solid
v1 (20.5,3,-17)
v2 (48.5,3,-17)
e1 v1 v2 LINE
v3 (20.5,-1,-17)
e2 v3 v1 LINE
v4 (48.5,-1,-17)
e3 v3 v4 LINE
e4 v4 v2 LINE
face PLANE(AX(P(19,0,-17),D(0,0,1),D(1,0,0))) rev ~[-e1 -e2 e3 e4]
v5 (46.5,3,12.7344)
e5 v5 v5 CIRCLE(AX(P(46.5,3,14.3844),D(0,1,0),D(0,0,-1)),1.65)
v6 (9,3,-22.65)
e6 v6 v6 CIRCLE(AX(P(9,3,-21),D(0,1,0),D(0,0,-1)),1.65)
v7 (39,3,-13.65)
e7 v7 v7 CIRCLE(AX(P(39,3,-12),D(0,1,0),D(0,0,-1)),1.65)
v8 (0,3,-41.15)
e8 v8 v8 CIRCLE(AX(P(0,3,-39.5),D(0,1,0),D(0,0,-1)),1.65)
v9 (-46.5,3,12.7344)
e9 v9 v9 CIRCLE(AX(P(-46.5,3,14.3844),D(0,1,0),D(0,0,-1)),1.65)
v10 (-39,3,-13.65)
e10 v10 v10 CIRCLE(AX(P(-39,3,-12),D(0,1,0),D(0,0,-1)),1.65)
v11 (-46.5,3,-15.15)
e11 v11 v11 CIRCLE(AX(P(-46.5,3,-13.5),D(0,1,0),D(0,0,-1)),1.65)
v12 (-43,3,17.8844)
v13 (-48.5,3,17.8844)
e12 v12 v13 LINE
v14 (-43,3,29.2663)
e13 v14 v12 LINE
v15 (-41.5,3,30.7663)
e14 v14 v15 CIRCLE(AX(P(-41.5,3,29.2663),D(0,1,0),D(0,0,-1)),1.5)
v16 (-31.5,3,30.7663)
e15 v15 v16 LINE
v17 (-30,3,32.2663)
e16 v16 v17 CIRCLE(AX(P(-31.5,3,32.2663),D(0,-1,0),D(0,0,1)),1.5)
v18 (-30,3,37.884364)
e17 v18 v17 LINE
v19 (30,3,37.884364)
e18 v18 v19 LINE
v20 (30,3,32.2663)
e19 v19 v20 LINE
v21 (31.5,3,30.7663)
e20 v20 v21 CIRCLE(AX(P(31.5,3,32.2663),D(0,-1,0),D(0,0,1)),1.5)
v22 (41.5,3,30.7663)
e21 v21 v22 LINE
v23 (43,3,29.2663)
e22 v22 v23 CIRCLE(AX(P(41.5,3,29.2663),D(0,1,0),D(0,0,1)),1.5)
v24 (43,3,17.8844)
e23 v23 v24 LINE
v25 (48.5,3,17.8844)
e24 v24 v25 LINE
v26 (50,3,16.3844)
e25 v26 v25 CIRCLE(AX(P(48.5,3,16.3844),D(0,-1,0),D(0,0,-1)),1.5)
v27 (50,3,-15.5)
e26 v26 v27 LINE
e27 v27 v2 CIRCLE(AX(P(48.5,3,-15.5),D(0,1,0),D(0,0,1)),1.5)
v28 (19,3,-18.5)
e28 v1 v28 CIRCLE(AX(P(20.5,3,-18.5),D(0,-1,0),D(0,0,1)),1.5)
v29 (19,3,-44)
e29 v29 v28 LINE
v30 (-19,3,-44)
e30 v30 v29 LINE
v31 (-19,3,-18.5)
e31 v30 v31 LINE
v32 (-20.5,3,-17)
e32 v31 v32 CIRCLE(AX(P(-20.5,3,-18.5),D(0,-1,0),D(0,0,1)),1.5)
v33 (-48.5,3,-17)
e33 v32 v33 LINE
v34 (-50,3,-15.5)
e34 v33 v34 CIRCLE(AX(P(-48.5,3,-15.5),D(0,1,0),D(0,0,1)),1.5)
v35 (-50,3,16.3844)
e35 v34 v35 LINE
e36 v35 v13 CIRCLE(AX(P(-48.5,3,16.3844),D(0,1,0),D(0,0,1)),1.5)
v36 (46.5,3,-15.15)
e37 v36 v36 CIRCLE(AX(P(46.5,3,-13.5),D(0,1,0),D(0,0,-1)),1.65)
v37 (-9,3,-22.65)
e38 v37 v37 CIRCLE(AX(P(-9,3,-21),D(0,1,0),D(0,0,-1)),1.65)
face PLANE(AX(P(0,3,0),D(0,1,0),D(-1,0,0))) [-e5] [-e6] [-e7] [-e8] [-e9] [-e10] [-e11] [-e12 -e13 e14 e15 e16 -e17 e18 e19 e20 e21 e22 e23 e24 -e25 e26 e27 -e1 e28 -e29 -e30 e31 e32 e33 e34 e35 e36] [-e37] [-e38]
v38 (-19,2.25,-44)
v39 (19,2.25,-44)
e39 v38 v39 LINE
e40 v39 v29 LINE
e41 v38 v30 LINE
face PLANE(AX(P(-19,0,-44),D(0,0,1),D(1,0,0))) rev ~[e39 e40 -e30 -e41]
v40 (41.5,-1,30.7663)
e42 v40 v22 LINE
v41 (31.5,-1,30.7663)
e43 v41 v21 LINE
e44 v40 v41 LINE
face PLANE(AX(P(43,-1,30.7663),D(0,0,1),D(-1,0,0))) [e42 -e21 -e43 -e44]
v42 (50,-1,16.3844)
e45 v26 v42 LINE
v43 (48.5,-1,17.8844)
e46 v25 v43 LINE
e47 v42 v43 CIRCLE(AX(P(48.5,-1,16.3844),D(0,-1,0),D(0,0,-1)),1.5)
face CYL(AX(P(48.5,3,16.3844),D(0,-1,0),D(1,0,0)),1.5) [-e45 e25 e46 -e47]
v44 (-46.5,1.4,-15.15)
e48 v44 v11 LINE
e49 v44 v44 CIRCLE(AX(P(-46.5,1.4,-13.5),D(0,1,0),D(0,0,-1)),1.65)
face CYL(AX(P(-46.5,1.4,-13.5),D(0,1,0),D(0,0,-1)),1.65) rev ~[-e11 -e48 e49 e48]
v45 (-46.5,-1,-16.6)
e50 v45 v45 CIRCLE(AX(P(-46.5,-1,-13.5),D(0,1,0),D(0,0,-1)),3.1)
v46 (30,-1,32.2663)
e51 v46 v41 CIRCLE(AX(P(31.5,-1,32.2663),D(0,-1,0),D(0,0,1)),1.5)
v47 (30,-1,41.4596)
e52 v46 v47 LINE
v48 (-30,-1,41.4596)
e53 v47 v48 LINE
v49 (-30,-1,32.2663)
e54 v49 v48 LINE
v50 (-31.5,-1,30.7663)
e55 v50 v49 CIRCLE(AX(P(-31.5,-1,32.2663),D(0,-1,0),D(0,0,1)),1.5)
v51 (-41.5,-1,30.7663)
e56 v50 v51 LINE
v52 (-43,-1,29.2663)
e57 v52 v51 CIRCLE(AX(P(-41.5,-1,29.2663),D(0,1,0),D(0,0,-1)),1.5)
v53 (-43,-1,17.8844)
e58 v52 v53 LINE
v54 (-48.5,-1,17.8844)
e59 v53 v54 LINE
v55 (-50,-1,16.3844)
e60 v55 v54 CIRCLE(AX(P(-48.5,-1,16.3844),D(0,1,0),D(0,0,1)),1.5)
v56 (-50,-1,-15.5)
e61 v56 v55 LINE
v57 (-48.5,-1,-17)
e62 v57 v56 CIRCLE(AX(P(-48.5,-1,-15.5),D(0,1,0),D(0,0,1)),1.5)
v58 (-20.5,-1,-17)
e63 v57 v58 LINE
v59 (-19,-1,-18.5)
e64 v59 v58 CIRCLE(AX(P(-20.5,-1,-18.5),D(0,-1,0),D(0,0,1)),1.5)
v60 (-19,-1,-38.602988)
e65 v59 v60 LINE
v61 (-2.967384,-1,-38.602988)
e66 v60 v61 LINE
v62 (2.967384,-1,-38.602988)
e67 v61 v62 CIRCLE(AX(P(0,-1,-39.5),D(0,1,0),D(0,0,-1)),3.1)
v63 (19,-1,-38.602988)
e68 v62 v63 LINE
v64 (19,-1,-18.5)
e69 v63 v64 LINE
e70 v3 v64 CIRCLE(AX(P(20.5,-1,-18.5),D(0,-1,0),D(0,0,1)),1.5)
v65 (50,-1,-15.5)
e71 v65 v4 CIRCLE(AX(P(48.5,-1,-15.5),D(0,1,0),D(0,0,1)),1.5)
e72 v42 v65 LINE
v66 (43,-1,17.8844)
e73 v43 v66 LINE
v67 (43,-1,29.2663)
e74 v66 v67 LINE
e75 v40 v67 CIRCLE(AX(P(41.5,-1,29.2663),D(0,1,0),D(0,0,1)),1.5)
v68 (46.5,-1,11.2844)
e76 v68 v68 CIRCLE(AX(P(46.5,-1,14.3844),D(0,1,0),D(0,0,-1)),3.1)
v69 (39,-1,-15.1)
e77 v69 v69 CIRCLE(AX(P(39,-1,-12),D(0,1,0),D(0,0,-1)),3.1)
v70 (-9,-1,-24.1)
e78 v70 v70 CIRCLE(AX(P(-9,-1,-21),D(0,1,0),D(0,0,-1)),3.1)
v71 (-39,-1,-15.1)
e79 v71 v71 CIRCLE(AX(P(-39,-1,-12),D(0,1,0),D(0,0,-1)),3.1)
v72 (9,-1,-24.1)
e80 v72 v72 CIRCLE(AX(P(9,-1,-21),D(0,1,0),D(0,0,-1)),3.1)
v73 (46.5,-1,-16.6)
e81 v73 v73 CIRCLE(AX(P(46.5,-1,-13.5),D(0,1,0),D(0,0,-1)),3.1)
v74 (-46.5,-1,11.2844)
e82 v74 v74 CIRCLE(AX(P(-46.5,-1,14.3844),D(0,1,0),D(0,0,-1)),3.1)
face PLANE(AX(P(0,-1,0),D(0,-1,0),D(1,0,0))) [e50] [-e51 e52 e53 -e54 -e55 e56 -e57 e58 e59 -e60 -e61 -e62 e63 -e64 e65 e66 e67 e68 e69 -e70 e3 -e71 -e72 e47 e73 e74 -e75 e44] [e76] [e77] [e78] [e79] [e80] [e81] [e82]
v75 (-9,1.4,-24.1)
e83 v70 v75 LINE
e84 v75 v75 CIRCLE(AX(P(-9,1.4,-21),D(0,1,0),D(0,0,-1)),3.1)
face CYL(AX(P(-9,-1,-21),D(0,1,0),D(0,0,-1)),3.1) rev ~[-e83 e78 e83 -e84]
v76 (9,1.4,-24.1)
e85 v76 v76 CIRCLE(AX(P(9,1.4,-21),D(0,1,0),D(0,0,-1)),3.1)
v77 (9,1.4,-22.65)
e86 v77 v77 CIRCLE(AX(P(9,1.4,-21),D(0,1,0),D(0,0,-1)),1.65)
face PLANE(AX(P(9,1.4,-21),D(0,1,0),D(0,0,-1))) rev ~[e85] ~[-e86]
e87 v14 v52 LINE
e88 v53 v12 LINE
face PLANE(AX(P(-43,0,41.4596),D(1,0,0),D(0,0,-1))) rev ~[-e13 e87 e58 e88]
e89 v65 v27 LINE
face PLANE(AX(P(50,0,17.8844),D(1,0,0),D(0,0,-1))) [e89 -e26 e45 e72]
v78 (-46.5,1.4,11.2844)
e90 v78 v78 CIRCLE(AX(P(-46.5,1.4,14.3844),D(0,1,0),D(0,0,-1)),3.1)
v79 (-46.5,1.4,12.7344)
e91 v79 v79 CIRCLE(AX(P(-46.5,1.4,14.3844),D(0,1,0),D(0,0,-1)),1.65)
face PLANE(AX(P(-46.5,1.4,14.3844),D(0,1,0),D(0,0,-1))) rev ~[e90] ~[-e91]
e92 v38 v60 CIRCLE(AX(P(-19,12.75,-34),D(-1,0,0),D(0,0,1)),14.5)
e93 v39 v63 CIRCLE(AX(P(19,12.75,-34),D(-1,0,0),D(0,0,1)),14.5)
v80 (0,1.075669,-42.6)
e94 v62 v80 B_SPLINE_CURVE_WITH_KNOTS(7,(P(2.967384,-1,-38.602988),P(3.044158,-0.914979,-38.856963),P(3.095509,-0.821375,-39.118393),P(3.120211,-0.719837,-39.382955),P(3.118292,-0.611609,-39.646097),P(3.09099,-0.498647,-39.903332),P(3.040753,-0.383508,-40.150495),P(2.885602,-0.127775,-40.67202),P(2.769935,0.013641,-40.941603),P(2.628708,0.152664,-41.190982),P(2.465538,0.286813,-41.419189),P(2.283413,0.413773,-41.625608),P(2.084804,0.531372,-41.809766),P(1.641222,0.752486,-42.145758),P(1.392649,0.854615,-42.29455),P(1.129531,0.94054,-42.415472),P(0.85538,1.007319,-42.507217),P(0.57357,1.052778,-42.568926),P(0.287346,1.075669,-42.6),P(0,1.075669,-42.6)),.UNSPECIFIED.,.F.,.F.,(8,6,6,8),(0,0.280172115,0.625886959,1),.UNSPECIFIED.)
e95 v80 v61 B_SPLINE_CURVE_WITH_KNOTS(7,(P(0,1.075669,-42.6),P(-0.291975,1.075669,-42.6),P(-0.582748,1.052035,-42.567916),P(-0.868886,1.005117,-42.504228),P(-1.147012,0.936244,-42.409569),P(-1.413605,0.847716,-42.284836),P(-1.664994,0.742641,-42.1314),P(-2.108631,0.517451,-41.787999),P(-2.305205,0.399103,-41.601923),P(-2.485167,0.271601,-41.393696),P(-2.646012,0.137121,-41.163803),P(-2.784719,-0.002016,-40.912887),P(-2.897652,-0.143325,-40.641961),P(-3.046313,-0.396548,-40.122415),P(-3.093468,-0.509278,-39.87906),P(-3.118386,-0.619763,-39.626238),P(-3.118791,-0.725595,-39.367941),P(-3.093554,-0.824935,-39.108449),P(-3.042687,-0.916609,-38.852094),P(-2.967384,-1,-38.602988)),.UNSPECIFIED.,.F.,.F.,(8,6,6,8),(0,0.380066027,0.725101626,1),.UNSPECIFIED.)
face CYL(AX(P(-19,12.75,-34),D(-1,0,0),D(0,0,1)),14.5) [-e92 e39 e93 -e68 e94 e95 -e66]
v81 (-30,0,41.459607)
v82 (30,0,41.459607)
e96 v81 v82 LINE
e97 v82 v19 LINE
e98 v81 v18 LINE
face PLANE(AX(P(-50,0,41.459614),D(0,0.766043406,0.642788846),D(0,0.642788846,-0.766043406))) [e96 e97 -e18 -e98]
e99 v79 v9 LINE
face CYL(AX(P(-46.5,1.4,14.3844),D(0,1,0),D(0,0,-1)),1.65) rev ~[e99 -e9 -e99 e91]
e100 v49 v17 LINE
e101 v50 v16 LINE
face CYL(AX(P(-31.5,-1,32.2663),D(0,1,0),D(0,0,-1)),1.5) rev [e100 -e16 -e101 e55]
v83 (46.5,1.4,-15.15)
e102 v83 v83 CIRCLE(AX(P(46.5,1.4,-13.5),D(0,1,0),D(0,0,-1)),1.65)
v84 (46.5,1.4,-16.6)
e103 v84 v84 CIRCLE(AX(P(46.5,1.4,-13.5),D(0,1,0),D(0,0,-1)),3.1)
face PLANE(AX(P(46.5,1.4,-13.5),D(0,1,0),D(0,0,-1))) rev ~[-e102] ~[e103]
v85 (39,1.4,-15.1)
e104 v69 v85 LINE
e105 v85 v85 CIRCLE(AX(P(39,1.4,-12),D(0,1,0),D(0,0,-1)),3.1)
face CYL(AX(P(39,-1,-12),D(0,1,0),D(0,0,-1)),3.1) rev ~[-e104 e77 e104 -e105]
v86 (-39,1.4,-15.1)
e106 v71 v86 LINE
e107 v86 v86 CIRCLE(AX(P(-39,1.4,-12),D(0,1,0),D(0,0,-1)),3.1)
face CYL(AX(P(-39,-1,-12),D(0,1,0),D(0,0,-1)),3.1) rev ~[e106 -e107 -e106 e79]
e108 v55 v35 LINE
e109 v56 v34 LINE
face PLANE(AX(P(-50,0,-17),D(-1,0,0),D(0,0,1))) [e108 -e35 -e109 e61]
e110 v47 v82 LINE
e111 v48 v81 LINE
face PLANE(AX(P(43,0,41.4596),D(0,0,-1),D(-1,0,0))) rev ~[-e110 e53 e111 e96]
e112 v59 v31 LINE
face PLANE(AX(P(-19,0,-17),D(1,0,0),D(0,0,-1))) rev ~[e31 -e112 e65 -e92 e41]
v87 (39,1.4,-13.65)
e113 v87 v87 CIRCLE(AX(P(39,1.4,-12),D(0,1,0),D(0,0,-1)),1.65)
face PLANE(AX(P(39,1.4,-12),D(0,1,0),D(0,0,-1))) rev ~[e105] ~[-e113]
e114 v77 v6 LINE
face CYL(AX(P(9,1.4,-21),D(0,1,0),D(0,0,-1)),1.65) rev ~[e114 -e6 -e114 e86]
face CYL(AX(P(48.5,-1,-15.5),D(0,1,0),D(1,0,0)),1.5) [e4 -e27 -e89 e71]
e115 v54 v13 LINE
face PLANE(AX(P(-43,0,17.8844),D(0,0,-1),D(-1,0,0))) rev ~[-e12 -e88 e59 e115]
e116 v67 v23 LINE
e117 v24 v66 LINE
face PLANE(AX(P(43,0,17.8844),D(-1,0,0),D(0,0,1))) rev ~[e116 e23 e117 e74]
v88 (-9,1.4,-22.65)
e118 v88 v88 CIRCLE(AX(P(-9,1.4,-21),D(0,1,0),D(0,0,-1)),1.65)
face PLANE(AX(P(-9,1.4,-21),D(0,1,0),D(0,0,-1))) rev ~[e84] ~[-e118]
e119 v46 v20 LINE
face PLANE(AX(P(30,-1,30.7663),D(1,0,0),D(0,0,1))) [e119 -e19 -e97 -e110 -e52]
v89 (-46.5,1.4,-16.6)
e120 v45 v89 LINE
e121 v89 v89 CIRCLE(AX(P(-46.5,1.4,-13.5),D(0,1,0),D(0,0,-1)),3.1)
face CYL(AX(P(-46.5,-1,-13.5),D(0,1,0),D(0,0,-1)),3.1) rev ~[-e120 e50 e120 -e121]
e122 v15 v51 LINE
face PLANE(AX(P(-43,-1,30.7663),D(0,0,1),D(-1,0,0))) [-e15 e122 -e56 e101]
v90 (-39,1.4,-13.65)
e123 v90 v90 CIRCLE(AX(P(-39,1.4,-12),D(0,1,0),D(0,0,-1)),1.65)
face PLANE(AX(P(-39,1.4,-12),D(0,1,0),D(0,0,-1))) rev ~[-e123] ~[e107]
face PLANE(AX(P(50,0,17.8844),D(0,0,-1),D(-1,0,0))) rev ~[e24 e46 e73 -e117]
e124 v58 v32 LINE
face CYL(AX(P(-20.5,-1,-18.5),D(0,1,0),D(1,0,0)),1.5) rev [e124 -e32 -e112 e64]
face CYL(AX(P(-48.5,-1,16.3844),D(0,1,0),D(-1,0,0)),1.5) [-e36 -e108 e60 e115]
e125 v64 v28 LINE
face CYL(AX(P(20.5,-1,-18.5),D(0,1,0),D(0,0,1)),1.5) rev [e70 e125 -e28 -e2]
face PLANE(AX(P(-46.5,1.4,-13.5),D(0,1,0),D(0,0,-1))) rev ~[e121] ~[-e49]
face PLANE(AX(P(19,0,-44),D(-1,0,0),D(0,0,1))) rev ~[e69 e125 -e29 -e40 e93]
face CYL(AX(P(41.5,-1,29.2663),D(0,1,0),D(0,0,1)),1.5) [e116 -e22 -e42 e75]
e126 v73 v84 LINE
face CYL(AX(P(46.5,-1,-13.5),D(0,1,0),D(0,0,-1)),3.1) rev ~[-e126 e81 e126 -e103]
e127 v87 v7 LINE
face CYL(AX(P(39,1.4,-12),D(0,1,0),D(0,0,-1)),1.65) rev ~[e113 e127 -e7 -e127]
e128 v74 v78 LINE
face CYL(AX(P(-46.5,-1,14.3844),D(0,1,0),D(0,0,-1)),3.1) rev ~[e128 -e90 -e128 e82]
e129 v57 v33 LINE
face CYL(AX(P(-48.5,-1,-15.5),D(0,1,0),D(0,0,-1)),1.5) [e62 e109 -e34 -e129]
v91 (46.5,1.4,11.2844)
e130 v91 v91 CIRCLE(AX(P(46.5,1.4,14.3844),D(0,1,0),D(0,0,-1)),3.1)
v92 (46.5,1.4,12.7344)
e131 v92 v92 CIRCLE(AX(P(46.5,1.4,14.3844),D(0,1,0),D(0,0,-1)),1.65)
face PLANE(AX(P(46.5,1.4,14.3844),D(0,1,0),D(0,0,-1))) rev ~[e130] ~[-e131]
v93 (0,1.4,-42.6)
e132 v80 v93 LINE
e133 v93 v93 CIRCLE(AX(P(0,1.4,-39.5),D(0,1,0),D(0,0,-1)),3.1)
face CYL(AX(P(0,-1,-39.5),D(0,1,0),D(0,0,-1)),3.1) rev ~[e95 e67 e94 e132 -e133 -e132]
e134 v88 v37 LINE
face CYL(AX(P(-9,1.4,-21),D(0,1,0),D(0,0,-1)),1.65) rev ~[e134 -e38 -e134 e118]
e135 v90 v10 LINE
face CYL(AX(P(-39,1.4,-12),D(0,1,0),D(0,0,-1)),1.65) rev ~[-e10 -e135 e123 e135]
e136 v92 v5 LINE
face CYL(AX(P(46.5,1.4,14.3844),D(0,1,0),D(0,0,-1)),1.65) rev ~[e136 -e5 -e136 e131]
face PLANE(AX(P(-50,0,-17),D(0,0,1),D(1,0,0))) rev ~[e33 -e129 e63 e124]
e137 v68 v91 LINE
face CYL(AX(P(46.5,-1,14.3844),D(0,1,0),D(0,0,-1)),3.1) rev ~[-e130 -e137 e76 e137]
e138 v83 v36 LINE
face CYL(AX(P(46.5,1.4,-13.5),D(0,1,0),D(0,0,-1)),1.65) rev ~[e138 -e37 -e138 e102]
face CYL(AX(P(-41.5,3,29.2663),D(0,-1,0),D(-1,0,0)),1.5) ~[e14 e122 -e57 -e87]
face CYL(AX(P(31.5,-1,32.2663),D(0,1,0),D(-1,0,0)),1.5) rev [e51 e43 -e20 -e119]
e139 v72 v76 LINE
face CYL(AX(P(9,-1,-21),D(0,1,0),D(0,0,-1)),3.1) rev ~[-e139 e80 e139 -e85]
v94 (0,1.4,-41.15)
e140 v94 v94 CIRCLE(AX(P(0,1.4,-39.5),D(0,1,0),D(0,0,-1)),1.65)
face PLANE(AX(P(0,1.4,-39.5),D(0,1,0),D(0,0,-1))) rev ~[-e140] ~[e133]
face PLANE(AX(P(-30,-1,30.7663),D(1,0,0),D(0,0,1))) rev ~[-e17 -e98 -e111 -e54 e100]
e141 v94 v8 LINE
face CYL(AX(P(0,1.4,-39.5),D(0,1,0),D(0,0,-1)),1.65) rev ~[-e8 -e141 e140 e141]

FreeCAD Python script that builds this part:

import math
import FreeCAD as App
import Part
import Sketcher
from FreeCAD import Vector
Q = App.Units.Quantity


def edges_at(feature, points):
    """Names of the edges that pass closest to the given points."""
    edges = feature.Shape.Edges
    near = lambda p: min(range(len(edges)), key=lambda i: edges[i].distToShape(Part.Vertex(*p))[0])
    return sorted({f"Edge{near(p) + 1}" for p in points})

doc = App.newDocument("Part")
body = doc.addObject("PartDesign::Body", "Body")

sketch1 = body.newObject("Sketcher::SketchObject", "Sketch")
sketch1.AttachmentSupport = (doc.getObject("XZ_Plane"), [""])
sketch1.MapMode = "FlatFace"
sketch1.addGeometry(Part.LineSegment(Vector(-50, -50, 0), Vector(-50, 50, 0)), False)
sketch1.addGeometry(Part.LineSegment(Vector(-50, 50, 0), Vector(50, 50, 0)), False)
sketch1.addGeometry(Part.LineSegment(Vector(50, 50, 0), Vector(50, -50, 0)), False)
sketch1.addGeometry(Part.LineSegment(Vector(50, -50, 0), Vector(-50, -50, 0)), False)
sketch1.addConstraint(Sketcher.Constraint("Coincident", 0, 2, 1, 1))
sketch1.addConstraint(Sketcher.Constraint("Coincident", 1, 2, 2, 1))
sketch1.addConstraint(Sketcher.Constraint("Coincident", 2, 2, 3, 1))
sketch1.addConstraint(Sketcher.Constraint("Coincident", 3, 2, 0, 1))
sketch1.addConstraint(Sketcher.Constraint("Vertical", 0))
sketch1.addConstraint(Sketcher.Constraint("Horizontal", 1))
sketch1.addConstraint(Sketcher.Constraint("Vertical", 2))
sketch1.addConstraint(Sketcher.Constraint("Horizontal", 3))
sketch1.addConstraint(Sketcher.Constraint("Symmetric", 0, 2, 2, 2, -1, 1))
sketch1.addConstraint(Sketcher.Constraint("Equal", 3, 0))
sketch1.addConstraint(Sketcher.Constraint("DistanceX", 1, 1, 1, 2, 100.0))
pad1 = body.newObject("PartDesign::Pad", "Pad")
pad1.Profile = sketch1
pad1.Length = 3
pad1.Reversed = True

sketch2 = body.newObject("Sketcher::SketchObject", "Sketch001")
sketch2.AttachmentSupport = (doc.getObject("XZ_Plane"), [""])
sketch2.MapMode = "FlatFace"
sketch2.AttachmentOffset = App.Placement(Vector(0, 0, -3), App.Rotation())
sketch2.addGeometry(Part.LineSegment(Vector(19, -17, 0), Vector(50, -17, 0)), False)
sketch2.addGeometry(Part.LineSegment(Vector(50, -17, 0), Vector(50, -50, 0)), False)
sketch2.addGeometry(Part.LineSegment(Vector(50, -50, 0), Vector(19, -50, 0)), False)
sketch2.addGeometry(Part.LineSegment(Vector(19, -50, 0), Vector(19, -17, 0)), False)
sketch2.addGeometry(Part.LineSegment(Vector(-50, -50, 0), Vector(-50, -17, 0)), False)
sketch2.addGeometry(Part.LineSegment(Vector(-50, -17, 0), Vector(-19, -17, 0)), False)
sketch2.addGeometry(Part.LineSegment(Vector(-19, -17, 0), Vector(-19, -50, 0)), False)
sketch2.addGeometry(Part.LineSegment(Vector(-19, -50, 0), Vector(-50, -50, 0)), False)
sketch2.addConstraint(Sketcher.Constraint("Coincident", 0, 2, 1, 1))
sketch2.addConstraint(Sketcher.Constraint("Coincident", 1, 2, 2, 1))
sketch2.addConstraint(Sketcher.Constraint("Coincident", 2, 2, 3, 1))
sketch2.addConstraint(Sketcher.Constraint("Coincident", 3, 2, 0, 1))
sketch2.addConstraint(Sketcher.Constraint("Coincident", 4, 2, 5, 1))
sketch2.addConstraint(Sketcher.Constraint("Coincident", 5, 2, 6, 1))
sketch2.addConstraint(Sketcher.Constraint("Coincident", 6, 2, 7, 1))
sketch2.addConstraint(Sketcher.Constraint("Coincident", 7, 2, 4, 1))
sketch2.addConstraint(Sketcher.Constraint("Horizontal", 0))
sketch2.addConstraint(Sketcher.Constraint("Vertical", 1))
sketch2.addConstraint(Sketcher.Constraint("Horizontal", 2))
sketch2.addConstraint(Sketcher.Constraint("Vertical", 3))
sketch2.addConstraint(Sketcher.Constraint("Vertical", 4))
sketch2.addConstraint(Sketcher.Constraint("Horizontal", 5))
sketch2.addConstraint(Sketcher.Constraint("Vertical", 6))
sketch2.addConstraint(Sketcher.Constraint("Horizontal", 7))
sketch2.addConstraint(Sketcher.Constraint("Symmetric", 0, 2, 4, 2, -2))
sketch2.addConstraint(Sketcher.Constraint("Symmetric", 2, 2, 6, 2, -2))
sketch2.addConstraint(Sketcher.Constraint("DistanceX", 0, 1, 0, 2, 31.0))
sketch2.addConstraint(Sketcher.Constraint("DistanceY", 1, 2, 1, 1, 33.0))
sketch2.addConstraint(Sketcher.Constraint("DistanceX", -1, 1, 0, 2, 50.0))
sketch2.addConstraint(Sketcher.Constraint("DistanceY", 0, 2, -1, 1, 17.0))
pocket1 = body.newObject("PartDesign::Pocket", "Pocket")
pocket1.Profile = sketch2
pocket1.Type = "ThroughAll"
pocket1.Reversed = True

sketch3 = body.newObject("Sketcher::SketchObject", "Sketch002")
sketch3.AttachmentSupport = (doc.getObject("XZ_Plane"), [""])
sketch3.MapMode = "FlatFace"
sketch3.AttachmentOffset = App.Placement(Vector(0, 0, -3), App.Rotation())
sketch3.addGeometry(Part.LineSegment(Vector(-19, -44, 0), Vector(19, -44, 0)), False)
sketch3.addGeometry(Part.LineSegment(Vector(19, -44, 0), Vector(19, -50, 0)), False)
sketch3.addGeometry(Part.LineSegment(Vector(19, -50, 0), Vector(-19, -50, 0)), False)
sketch3.addGeometry(Part.LineSegment(Vector(-19, -50, 0), Vector(-19, -44, 0)), False)
sketch3.addConstraint(Sketcher.Constraint("Coincident", 0, 2, 1, 1))
sketch3.addConstraint(Sketcher.Constraint("Coincident", 1, 2, 2, 1))
sketch3.addConstraint(Sketcher.Constraint("Coincident", 2, 2, 3, 1))
sketch3.addConstraint(Sketcher.Constraint("Coincident", 3, 2, 0, 1))
sketch3.addConstraint(Sketcher.Constraint("Horizontal", 0))
sketch3.addConstraint(Sketcher.Constraint("Vertical", 1))
sketch3.addConstraint(Sketcher.Constraint("Horizontal", 2))
sketch3.addConstraint(Sketcher.Constraint("Vertical", 3))
sketch3.addConstraint(Sketcher.Constraint("DistanceY", 1, 2, 1, 1, 6.0))
sketch3.addConstraint(Sketcher.Constraint("DistanceX", 0, 1, 0, 2, 38.0))
sketch3.addConstraint(Sketcher.Constraint("DistanceX", -1, 1, 0, 2, 19.0))
sketch3.addConstraint(Sketcher.Constraint("DistanceY", 0, 2, -1, 1, 44.0))
pocket2 = body.newObject("PartDesign::Pocket", "Pocket001")
pocket2.Profile = sketch3
pocket2.Type = "ThroughAll"
pocket2.Reversed = True

sketch4 = body.newObject("Sketcher::SketchObject", "Sketch003")
sketch4.AttachmentSupport = (doc.getObject("YZ_Plane"), [""])
sketch4.MapMode = "FlatFace"
sketch4.AttachmentOffset = App.Placement(Vector(0, 0, -50), App.Rotation())
sketch4.addGeometry(Part.LineSegment(Vector(0, 41.459614, 0), Vector(0, 50, 0)), False)
sketch4.addGeometry(Part.LineSegment(Vector(0, 50, 0), Vector(3, 50, 0)), False)
sketch4.addGeometry(Part.LineSegment(Vector(3, 50, 0), Vector(3, 37.884364, 0)), False)
sketch4.addGeometry(Part.LineSegment(Vector(3, 37.884364, 0), Vector(0, 41.459614, 0)), False)
sketch4.addConstraint(Sketcher.Constraint("Coincident", 0, 2, 1, 1))
sketch4.addConstraint(Sketcher.Constraint("Coincident", 1, 2, 2, 1))
sketch4.addConstraint(Sketcher.Constraint("Coincident", 2, 2, 3, 1))
sketch4.addConstraint(Sketcher.Constraint("Coincident", 3, 2, 0, 1))
sketch4.addConstraint(Sketcher.Constraint("Vertical", 0))
sketch4.addConstraint(Sketcher.Constraint("Horizontal", 1))
sketch4.addConstraint(Sketcher.Constraint("Vertical", 2))
sketch4.addConstraint(Sketcher.Constraint("PointOnObject", 0, 2, -2))
sketch4.addConstraint(Sketcher.Constraint("DistanceX", 1, 1, 1, 2, 3.0))
sketch4.addConstraint(Sketcher.Constraint("Angle", 3, Q("130 deg")))
sketch4.addConstraint(Sketcher.Constraint("DistanceY", -1, 1, 0, 2, 50.0))
sketch4.addConstraint(Sketcher.Constraint("DistanceY", 0, 1, 0, 2, 8.5404))
pocket3 = body.newObject("PartDesign::Pocket", "Pocket002")
pocket3.Profile = sketch4
pocket3.Type = "ThroughAll"
pocket3.Reversed = True

sketch5 = body.newObject("Sketcher::SketchObject", "Sketch004")
sketch5.AttachmentSupport = (doc.getObject("XZ_Plane"), [""])
sketch5.MapMode = "FlatFace"
sketch5.addGeometry(Part.LineSegment(Vector(-50, 43.0531, 0), Vector(-50, 17.8844, 0)), False)
sketch5.addGeometry(Part.LineSegment(Vector(-50, 17.8844, 0), Vector(-43, 17.8844, 0)), False)
sketch5.addGeometry(Part.LineSegment(Vector(-43, 17.8844, 0), Vector(-43, 43.0531, 0)), False)
sketch5.addGeometry(Part.LineSegment(Vector(-43, 43.0531, 0), Vector(-50, 43.0531, 0)), False)
sketch5.addConstraint(Sketcher.Constraint("Coincident", 0, 2, 1, 1))
sketch5.addConstraint(Sketcher.Constraint("Coincident", 1, 2, 2, 1))
sketch5.addConstraint(Sketcher.Constraint("Coincident", 2, 2, 3, 1))
sketch5.addConstraint(Sketcher.Constraint("Coincident", 3, 2, 0, 1))
sketch5.addConstraint(Sketcher.Constraint("Vertical", 0))
sketch5.addConstraint(Sketcher.Constraint("Horizontal", 1))
sketch5.addConstraint(Sketcher.Constraint("Vertical", 2))
sketch5.addConstraint(Sketcher.Constraint("Horizontal", 3))
sketch5.addConstraint(Sketcher.Constraint("DistanceX", 1, 1, 1, 2, 7.0))
sketch5.addConstraint(Sketcher.Constraint("DistanceX", 0, 2, -1, 1, 50.0))
sketch5.addConstraint(Sketcher.Constraint("DistanceY", 0, 2, 0, 1, 25.1687))
sketch5.addConstraint(Sketcher.Constraint("DistanceY", -1, 1, 2, 2, 43.053))
pocket4 = body.newObject("PartDesign::Pocket", "Pocket003")
pocket4.Profile = sketch5
pocket4.Type = "ThroughAll"
doc.recompute()

mirrored = body.newObject("PartDesign::Mirrored", "Mirrored")
mirrored.Originals = [pocket4]
mirrored.MirrorPlane = (doc.getObject("YZ_Plane"), [""])
body.Tip = mirrored

sketch6 = body.newObject("Sketcher::SketchObject", "Sketch005")
sketch6.AttachmentSupport = (doc.getObject("XZ_Plane"), [""])
sketch6.MapMode = "FlatFace"
sketch6.addGeometry(Part.LineSegment(Vector(50, -17, 0), Vector(50, 17.8844, 0)), False)
sketch6.addGeometry(Part.LineSegment(Vector(50, 17.8844, 0), Vector(43, 17.8844, 0)), False)
sketch6.addGeometry(Part.LineSegment(Vector(43, 17.8844, 0), Vector(43, 41.4596, 0)), False)
sketch6.addGeometry(Part.LineSegment(Vector(43, 41.4596, 0), Vector(-43, 41.4596, 0)), False)
sketch6.addGeometry(Part.LineSegment(Vector(-43, 41.4596, 0), Vector(-43, 17.8844, 0)), False)
sketch6.addGeometry(Part.LineSegment(Vector(-43, 17.8844, 0), Vector(-50, 17.8844, 0)), False)
sketch6.addGeometry(Part.LineSegment(Vector(-50, 17.8844, 0), Vector(-50, -17, 0)), False)
sketch6.addGeometry(Part.LineSegment(Vector(-50, -17, 0), Vector(-19, -17, 0)), False)
sketch6.addGeometry(Part.LineSegment(Vector(-19, -17, 0), Vector(-19, -44, 0)), False)
sketch6.addGeometry(Part.LineSegment(Vector(-19, -44, 0), Vector(19, -44, 0)), False)
sketch6.addGeometry(Part.LineSegment(Vector(19, -44, 0), Vector(19, -17, 0)), False)
sketch6.addGeometry(Part.LineSegment(Vector(19, -17, 0), Vector(50, -17, 0)), False)
sketch6.addConstraint(Sketcher.Constraint("Coincident", 0, 2, 1, 1))
sketch6.addConstraint(Sketcher.Constraint("Coincident", 1, 2, 2, 1))
sketch6.addConstraint(Sketcher.Constraint("Coincident", 2, 2, 3, 1))
sketch6.addConstraint(Sketcher.Constraint("Coincident", 3, 2, 4, 1))
sketch6.addConstraint(Sketcher.Constraint("Coincident", 4, 2, 5, 1))
sketch6.addConstraint(Sketcher.Constraint("Coincident", 5, 2, 6, 1))
sketch6.addConstraint(Sketcher.Constraint("Coincident", 6, 2, 7, 1))
sketch6.addConstraint(Sketcher.Constraint("Coincident", 7, 2, 8, 1))
sketch6.addConstraint(Sketcher.Constraint("Coincident", 8, 2, 9, 1))
sketch6.addConstraint(Sketcher.Constraint("Coincident", 9, 2, 10, 1))
sketch6.addConstraint(Sketcher.Constraint("Coincident", 10, 2, 11, 1))
sketch6.addConstraint(Sketcher.Constraint("Coincident", 11, 2, 0, 1))
sketch6.addConstraint(Sketcher.Constraint("Vertical", 0))
sketch6.addConstraint(Sketcher.Constraint("Horizontal", 1))
sketch6.addConstraint(Sketcher.Constraint("Vertical", 2))
sketch6.addConstraint(Sketcher.Constraint("Horizontal", 3))
sketch6.addConstraint(Sketcher.Constraint("Vertical", 4))
sketch6.addConstraint(Sketcher.Constraint("Horizontal", 5))
sketch6.addConstraint(Sketcher.Constraint("Vertical", 6))
sketch6.addConstraint(Sketcher.Constraint("Horizontal", 7))
sketch6.addConstraint(Sketcher.Constraint("Vertical", 8))
sketch6.addConstraint(Sketcher.Constraint("Horizontal", 9))
sketch6.addConstraint(Sketcher.Constraint("Vertical", 10))
sketch6.addConstraint(Sketcher.Constraint("Horizontal", 11))
sketch6.addConstraint(Sketcher.Constraint("Symmetric", 1, 2, 4, 2, -2))
sketch6.addConstraint(Sketcher.Constraint("Symmetric", 7, 2, 10, 2, -2))
sketch6.addConstraint(Sketcher.Constraint("Equal", 1, 5))
sketch6.addConstraint(Sketcher.Constraint("DistanceX", 1, 2, 1, 1, 7.0))
sketch6.addConstraint(Sketcher.Constraint("DistanceX", 3, 2, 3, 1, 86.0))
sketch6.addConstraint(Sketcher.Constraint("DistanceX", 7, 1, 7, 2, 31.0))
sketch6.addConstraint(Sketcher.Constraint("DistanceY", 8, 2, 8, 1, 27.0))
sketch6.addConstraint(Sketcher.Constraint("DistanceY", 6, 2, -1, 1, 17.0))
sketch6.addConstraint(Sketcher.Constraint("DistanceY", 0, 1, 0, 2, 34.8844))
sketch6.addConstraint(Sketcher.Constraint("DistanceY", 2, 1, 2, 2, 23.5752))
pad2 = body.newObject("PartDesign::Pad", "Pad001")
pad2.Profile = sketch6
pad2.Length = 1

sketch7 = body.newObject("Sketcher::SketchObject", "Sketch006")
sketch7.AttachmentSupport = (doc.getObject("YZ_Plane"), [""])
sketch7.MapMode = "FlatFace"
sketch7.AttachmentOffset = App.Placement(Vector(0, 0, -19), App.Rotation())
sketch7.addGeometry(Part.LineSegment(Vector(2.25, -44, 0), Vector(-1, -44, 0)), False)
sketch7.addGeometry(Part.LineSegment(Vector(-1, -44, 0), Vector(-1, -38.602988, 0)), False)
sketch7.addGeometry(Part.ArcOfCircle(Part.Circle(Vector(12.75, -34, 0), Vector(0, 0, 1), 14.5), math.radians(-161.491372), math.radians(-136.397181)), False)
sketch7.addConstraint(Sketcher.Constraint("Coincident", 0, 2, 1, 1))
sketch7.addConstraint(Sketcher.Constraint("Coincident", 1, 2, 2, 1))
sketch7.addConstraint(Sketcher.Constraint("Coincident", 2, 2, 0, 1))
sketch7.addConstraint(Sketcher.Constraint("Horizontal", 0))
sketch7.addConstraint(Sketcher.Constraint("Vertical", 1))
sketch7.addConstraint(Sketcher.Constraint("Radius", 2, 14.5))
sketch7.addConstraint(Sketcher.Constraint("DistanceY", 2, 3, -1, 1, 34.0))
sketch7.addConstraint(Sketcher.Constraint("DistanceX", 0, 2, -1, 1, 1.0))
sketch7.addConstraint(Sketcher.Constraint("DistanceY", 0, 2, -1, 1, 44.0))
sketch7.addConstraint(Sketcher.Constraint("DistanceX", 0, 2, 0, 1, 3.25))
pocket5 = body.newObject("PartDesign::Pocket", "Pocket004")
pocket5.Profile = sketch7
pocket5.Type = "ThroughAll"
pocket5.Reversed = True

sketch8 = body.newObject("Sketcher::SketchObject", "Sketch007")
sketch8.AttachmentSupport = (doc.getObject("XZ_Plane"), [""])
sketch8.MapMode = "FlatFace"
sketch8.AttachmentOffset = App.Placement(Vector(0, 0, 1), App.Rotation())
sketch8.addGeometry(Part.Circle(Vector(-39, -12, 0), Vector(0, 0, 1), 1.65), False)
sketch8.addGeometry(Part.Circle(Vector(-46.5, -13.5, 0), Vector(0, 0, 1), 1.65), False)
sketch8.addGeometry(Part.Circle(Vector(-46.5, 14.3844, 0), Vector(0, 0, 1), 1.65), False)
sketch8.addGeometry(Part.Circle(Vector(-9, -21, 0), Vector(0, 0, 1), 1.65), False)
sketch8.addGeometry(Part.Circle(Vector(0, -39.5, 0), Vector(0, 0, 1), 1.65), False)
sketch8.addGeometry(Part.Circle(Vector(9, -21, 0), Vector(0, 0, 1), 1.65), False)
sketch8.addGeometry(Part.Circle(Vector(39, -12, 0), Vector(0, 0, 1), 1.65), False)
sketch8.addGeometry(Part.Circle(Vector(46.5, -13.5, 0), Vector(0, 0, 1), 1.65), False)
sketch8.addGeometry(Part.Circle(Vector(46.5, 14.3844, 0), Vector(0, 0, 1), 1.65), False)
sketch8.addConstraint(Sketcher.Constraint("Equal", 0, 1))
sketch8.addConstraint(Sketcher.Constraint("Equal", 1, 2))
sketch8.addConstraint(Sketcher.Constraint("Equal", 2, 3))
sketch8.addConstraint(Sketcher.Constraint("Equal", 3, 4))
sketch8.addConstraint(Sketcher.Constraint("Equal", 4, 5))
sketch8.addConstraint(Sketcher.Constraint("Equal", 5, 6))
sketch8.addConstraint(Sketcher.Constraint("Equal", 6, 7))
sketch8.addConstraint(Sketcher.Constraint("Equal", 7, 8))
sketch8.addConstraint(Sketcher.Constraint("Symmetric", 3, 3, 5, 3, -2))
sketch8.addConstraint(Sketcher.Constraint("Symmetric", 0, 3, 6, 3, -2))
sketch8.addConstraint(Sketcher.Constraint("Symmetric", 1, 3, 7, 3, -2))
sketch8.addConstraint(Sketcher.Constraint("Symmetric", 2, 3, 8, 3, -2))
sketch8.addConstraint(Sketcher.Constraint("PointOnObject", 4, 3, -2))
sketch8.addConstraint(Sketcher.Constraint("Vertical", 1, 3, 2, 3))
sketch8.addConstraint(Sketcher.Constraint("Diameter", 0, 3.3))
sketch8.addConstraint(Sketcher.Constraint("DistanceX", 0, 3, -1, 1, 39.0))
sketch8.addConstraint(Sketcher.Constraint("DistanceY", 0, 3, -1, 1, 12.0))
sketch8.addConstraint(Sketcher.Constraint("DistanceX", 3, 3, -1, 1, 9.0))
sketch8.addConstraint(Sketcher.Constraint("DistanceY", 3, 3, -1, 1, 21.0))
sketch8.addConstraint(Sketcher.Constraint("DistanceY", 4, 3, 1, 3, 26.0))
sketch8.addConstraint(Sketcher.Constraint("DistanceX", 1, 3, -1, 1, 46.5))
sketch8.addConstraint(Sketcher.Constraint("DistanceY", 1, 3, -1, 1, 13.5))
sketch8.addConstraint(Sketcher.Constraint("DistanceY", -1, 1, 2, 3, 14.3844))
doc.recompute()
hole = body.newObject("PartDesign::Hole", "Hole")
hole.Profile = sketch8
hole.ThreadType = "None"
hole.Diameter = 3.3
hole.DepthType = "ThroughAll"
hole.HoleCutType = "Counterbore"
hole.HoleCutDiameter = 6.2
hole.HoleCutDepth = 2.4

sketch9 = body.newObject("Sketcher::SketchObject", "Sketch008")
sketch9.AttachmentSupport = (doc.getObject("XZ_Plane"), [""])
sketch9.MapMode = "FlatFace"
sketch9.AttachmentOffset = App.Placement(Vector(0, 0, 1), App.Rotation())
sketch9.addGeometry(Part.LineSegment(Vector(30, 30.7663, 0), Vector(50, 30.7663, 0)), False)
sketch9.addGeometry(Part.LineSegment(Vector(50, 30.7663, 0), Vector(50, 41.4596, 0)), False)
sketch9.addGeometry(Part.LineSegment(Vector(50, 41.4596, 0), Vector(30, 41.4596, 0)), False)
sketch9.addGeometry(Part.LineSegment(Vector(30, 41.4596, 0), Vector(30, 30.7663, 0)), False)
sketch9.addGeometry(Part.LineSegment(Vector(-50, 30.7663, 0), Vector(-30, 30.7663, 0)), False)
sketch9.addGeometry(Part.LineSegment(Vector(-30, 30.7663, 0), Vector(-30, 41.4596, 0)), False)
sketch9.addGeometry(Part.LineSegment(Vector(-30, 41.4596, 0), Vector(-50, 41.4596, 0)), False)
sketch9.addGeometry(Part.LineSegment(Vector(-50, 41.4596, 0), Vector(-50, 30.7663, 0)), False)
sketch9.addConstraint(Sketcher.Constraint("Coincident", 0, 2, 1, 1))
sketch9.addConstraint(Sketcher.Constraint("Coincident", 1, 2, 2, 1))
sketch9.addConstraint(Sketcher.Constraint("Coincident", 2, 2, 3, 1))
sketch9.addConstraint(Sketcher.Constraint("Coincident", 3, 2, 0, 1))
sketch9.addConstraint(Sketcher.Constraint("Coincident", 4, 2, 5, 1))
sketch9.addConstraint(Sketcher.Constraint("Coincident", 5, 2, 6, 1))
sketch9.addConstraint(Sketcher.Constraint("Coincident", 6, 2, 7, 1))
sketch9.addConstraint(Sketcher.Constraint("Coincident", 7, 2, 4, 1))
sketch9.addConstraint(Sketcher.Constraint("Horizontal", 0))
sketch9.addConstraint(Sketcher.Constraint("Vertical", 1))
sketch9.addConstraint(Sketcher.Constraint("Horizontal", 2))
sketch9.addConstraint(Sketcher.Constraint("Vertical", 3))
sketch9.addConstraint(Sketcher.Constraint("Horizontal", 4))
sketch9.addConstraint(Sketcher.Constraint("Vertical", 5))
sketch9.addConstraint(Sketcher.Constraint("Horizontal", 6))
sketch9.addConstraint(Sketcher.Constraint("Vertical", 7))
sketch9.addConstraint(Sketcher.Constraint("Symmetric", 3, 2, 4, 2, -2))
sketch9.addConstraint(Sketcher.Constraint("Symmetric", 1, 2, 6, 2, -2))
sketch9.addConstraint(Sketcher.Constraint("DistanceX", 0, 1, 0, 2, 20.0))
sketch9.addConstraint(Sketcher.Constraint("DistanceX", -1, 1, 0, 2, 50.0))
sketch9.addConstraint(Sketcher.Constraint("DistanceY", 1, 1, 1, 2, 10.6933))
sketch9.addConstraint(Sketcher.Constraint("DistanceY", -1, 1, 0, 2, 30.7663))
pocket6 = body.newObject("PartDesign::Pocket", "Pocket005")
pocket6.Profile = sketch9
pocket6.Type = "ThroughAll"
doc.recompute()

fillet = body.newObject("PartDesign::Fillet", "Fillet")
fillet.Base = (pocket6, edges_at(pocket6, [
    (-50, 1, 17.884),
    (-50, 1, -17),
    (-19, 1, -17),
    (19, 1, -17),
    (50, 1, -17),
    (50, 1, 17.884),
    (43, 1, 30.766),
    (30, 1, 30.766),
    (-43, 1, 30.766),
    (-30, 1, 30.766),
]))
fillet.Radius = 1.5

doc.recompute()
